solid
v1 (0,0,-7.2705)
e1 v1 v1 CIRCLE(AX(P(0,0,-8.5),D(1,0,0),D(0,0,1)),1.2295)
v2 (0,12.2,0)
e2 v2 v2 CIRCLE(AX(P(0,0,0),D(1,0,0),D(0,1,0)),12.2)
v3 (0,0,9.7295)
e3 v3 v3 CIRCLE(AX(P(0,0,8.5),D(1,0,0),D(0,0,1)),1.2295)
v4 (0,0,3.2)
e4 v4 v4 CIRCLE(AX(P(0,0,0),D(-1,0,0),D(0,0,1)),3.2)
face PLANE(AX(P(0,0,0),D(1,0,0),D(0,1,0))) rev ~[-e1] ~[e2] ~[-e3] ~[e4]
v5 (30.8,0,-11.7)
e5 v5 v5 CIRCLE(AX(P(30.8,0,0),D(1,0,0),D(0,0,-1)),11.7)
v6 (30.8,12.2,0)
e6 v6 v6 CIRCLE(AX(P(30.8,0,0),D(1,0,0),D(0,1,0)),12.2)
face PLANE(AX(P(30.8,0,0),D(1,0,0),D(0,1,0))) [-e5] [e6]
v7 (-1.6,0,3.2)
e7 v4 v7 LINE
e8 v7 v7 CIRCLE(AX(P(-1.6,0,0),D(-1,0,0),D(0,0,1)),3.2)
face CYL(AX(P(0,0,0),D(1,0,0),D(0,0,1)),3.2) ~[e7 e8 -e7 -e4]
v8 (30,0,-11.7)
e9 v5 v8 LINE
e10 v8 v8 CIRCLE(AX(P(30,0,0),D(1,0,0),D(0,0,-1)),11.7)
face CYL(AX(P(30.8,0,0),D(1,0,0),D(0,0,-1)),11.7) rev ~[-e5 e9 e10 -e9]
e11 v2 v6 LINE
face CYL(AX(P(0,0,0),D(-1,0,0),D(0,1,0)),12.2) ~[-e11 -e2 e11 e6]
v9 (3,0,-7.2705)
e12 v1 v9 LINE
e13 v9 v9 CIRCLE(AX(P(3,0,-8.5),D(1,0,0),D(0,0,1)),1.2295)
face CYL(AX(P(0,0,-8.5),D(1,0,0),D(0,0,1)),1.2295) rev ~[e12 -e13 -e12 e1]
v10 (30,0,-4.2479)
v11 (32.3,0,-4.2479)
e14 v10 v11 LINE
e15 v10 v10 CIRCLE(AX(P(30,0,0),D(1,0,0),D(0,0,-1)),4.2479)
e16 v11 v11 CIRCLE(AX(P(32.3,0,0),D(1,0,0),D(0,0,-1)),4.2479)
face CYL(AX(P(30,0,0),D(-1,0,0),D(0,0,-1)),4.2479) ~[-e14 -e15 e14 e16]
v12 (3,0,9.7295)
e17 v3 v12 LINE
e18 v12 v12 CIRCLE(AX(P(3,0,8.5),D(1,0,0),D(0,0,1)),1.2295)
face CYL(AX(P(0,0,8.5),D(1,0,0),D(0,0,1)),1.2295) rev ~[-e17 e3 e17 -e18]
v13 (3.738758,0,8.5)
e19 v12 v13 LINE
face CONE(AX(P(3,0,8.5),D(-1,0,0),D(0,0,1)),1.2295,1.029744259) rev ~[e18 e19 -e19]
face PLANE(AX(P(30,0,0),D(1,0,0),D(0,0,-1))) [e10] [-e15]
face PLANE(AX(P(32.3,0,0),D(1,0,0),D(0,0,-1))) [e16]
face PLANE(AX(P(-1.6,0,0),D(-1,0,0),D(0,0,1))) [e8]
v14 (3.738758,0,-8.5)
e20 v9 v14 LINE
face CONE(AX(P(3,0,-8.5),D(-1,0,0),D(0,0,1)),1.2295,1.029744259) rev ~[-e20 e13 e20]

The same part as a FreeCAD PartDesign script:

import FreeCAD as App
import Part
import Sketcher

V = App.Vector
Q = App.Units.Quantity

doc = App.newDocument("Part")
body = doc.addObject("PartDesign::Body", "Body")

# Sketch on YZ plane
sketch1 = body.newObject("Sketcher::SketchObject", "Sketch")
sketch1.AttachmentSupport = (doc.getObject("YZ_Plane"), [""])
sketch1.MapMode = "FlatFace"
sketch1.addGeometry(Part.Circle(V(0, 0, 0), V(0, 0, 1), 12.2), False)
sketch1.addConstraint([
    Sketcher.Constraint("Coincident", 0, 3, -1, 1),
    Sketcher.Constraint("Diameter", 0, Q("24.4 mm")),
])
pad1 = body.newObject("PartDesign::Pad", "Pad")
pad1.Profile = sketch1
pad1.Length = 30.8

# Sketch on YZ plane
sketch2 = body.newObject("Sketcher::SketchObject", "Sketch001")
sketch2.AttachmentSupport = (doc.getObject("YZ_Plane"), [""])
sketch2.MapMode = "FlatFace"
sketch2.AttachmentOffset = App.Placement(V(0, 0, 30.8), App.Rotation())
sketch2.addGeometry(Part.Circle(V(0, 0, 0), V(0, 0, 1), 11.7), False)
sketch2.addConstraint([
    Sketcher.Constraint("Coincident", 0, 3, -1, 1),
    Sketcher.Constraint("Diameter", 0, Q("23.4 mm")),
])
pocket1 = body.newObject("PartDesign::Pocket", "Pocket")
pocket1.Profile = sketch2
pocket1.Length = 0.8

# Sketch on YZ plane
sketch3 = body.newObject("Sketcher::SketchObject", "Sketch002")
sketch3.AttachmentSupport = (doc.getObject("YZ_Plane"), [""])
sketch3.MapMode = "FlatFace"
sketch3.AttachmentOffset = App.Placement(V(0, 0, 30), App.Rotation())
sketch3.addGeometry(Part.Circle(V(0, 0, 0), V(0, 0, 1), 4.2479), False)
sketch3.addConstraint([
    Sketcher.Constraint("Coincident", 0, 3, -1, 1),
    Sketcher.Constraint("Diameter", 0, Q("8.4958 mm")),
])
pad2 = body.newObject("PartDesign::Pad", "Pad001")
pad2.Profile = sketch3
pad2.Length = 2.3

# Sketch on YZ plane
sketch4 = body.newObject("Sketcher::SketchObject", "Sketch003")
sketch4.AttachmentSupport = (doc.getObject("YZ_Plane"), [""])
sketch4.MapMode = "FlatFace"
sketch4.addGeometry([
    Part.Circle(V(0, 8.5, 0), V(0, 0, 1), 1.2295),
    Part.Circle(V(0, -8.5, 0), V(0, 0, 1), 1.2295),
], False)
sketch4.addConstraint([
    Sketcher.Constraint("Equal", 0, 1),
    Sketcher.Constraint("Symmetric", 0, 3, 1, 3, -1, 1),
    Sketcher.Constraint("PointOnObject", 0, 3, -2),
    Sketcher.Constraint("Diameter", 0, Q("2.459 mm")),
    Sketcher.Constraint("DistanceY", 1, 3, 0, 3, Q("17 mm")),
])
doc.recompute()
hole = body.newObject("PartDesign::Hole", "Hole")
hole.Profile = sketch4
hole.ThreadType = "None"
hole.Diameter = 2.459
hole.DepthType = "Dimension"
hole.Depth = 3
hole.DrillPoint = "Angled"
hole.DrillPointAngle = 118
hole.Reversed = True

# Sketch on YZ plane
sketch5 = body.newObject("Sketcher::SketchObject", "Sketch004")
sketch5.AttachmentSupport = (doc.getObject("YZ_Plane"), [""])
sketch5.MapMode = "FlatFace"
sketch5.addGeometry(Part.Circle(V(0, 0, 0), V(0, 0, 1), 3.2), False)
sketch5.addConstraint([
    Sketcher.Constraint("Coincident", 0, 3, -1, 1),
    Sketcher.Constraint("Diameter", 0, Q("6.4 mm")),
])
pad3 = body.newObject("PartDesign::Pad", "Pad002")
pad3.Profile = sketch5
pad3.Length = 1.6
pad3.Reversed = True

doc.recompute()
